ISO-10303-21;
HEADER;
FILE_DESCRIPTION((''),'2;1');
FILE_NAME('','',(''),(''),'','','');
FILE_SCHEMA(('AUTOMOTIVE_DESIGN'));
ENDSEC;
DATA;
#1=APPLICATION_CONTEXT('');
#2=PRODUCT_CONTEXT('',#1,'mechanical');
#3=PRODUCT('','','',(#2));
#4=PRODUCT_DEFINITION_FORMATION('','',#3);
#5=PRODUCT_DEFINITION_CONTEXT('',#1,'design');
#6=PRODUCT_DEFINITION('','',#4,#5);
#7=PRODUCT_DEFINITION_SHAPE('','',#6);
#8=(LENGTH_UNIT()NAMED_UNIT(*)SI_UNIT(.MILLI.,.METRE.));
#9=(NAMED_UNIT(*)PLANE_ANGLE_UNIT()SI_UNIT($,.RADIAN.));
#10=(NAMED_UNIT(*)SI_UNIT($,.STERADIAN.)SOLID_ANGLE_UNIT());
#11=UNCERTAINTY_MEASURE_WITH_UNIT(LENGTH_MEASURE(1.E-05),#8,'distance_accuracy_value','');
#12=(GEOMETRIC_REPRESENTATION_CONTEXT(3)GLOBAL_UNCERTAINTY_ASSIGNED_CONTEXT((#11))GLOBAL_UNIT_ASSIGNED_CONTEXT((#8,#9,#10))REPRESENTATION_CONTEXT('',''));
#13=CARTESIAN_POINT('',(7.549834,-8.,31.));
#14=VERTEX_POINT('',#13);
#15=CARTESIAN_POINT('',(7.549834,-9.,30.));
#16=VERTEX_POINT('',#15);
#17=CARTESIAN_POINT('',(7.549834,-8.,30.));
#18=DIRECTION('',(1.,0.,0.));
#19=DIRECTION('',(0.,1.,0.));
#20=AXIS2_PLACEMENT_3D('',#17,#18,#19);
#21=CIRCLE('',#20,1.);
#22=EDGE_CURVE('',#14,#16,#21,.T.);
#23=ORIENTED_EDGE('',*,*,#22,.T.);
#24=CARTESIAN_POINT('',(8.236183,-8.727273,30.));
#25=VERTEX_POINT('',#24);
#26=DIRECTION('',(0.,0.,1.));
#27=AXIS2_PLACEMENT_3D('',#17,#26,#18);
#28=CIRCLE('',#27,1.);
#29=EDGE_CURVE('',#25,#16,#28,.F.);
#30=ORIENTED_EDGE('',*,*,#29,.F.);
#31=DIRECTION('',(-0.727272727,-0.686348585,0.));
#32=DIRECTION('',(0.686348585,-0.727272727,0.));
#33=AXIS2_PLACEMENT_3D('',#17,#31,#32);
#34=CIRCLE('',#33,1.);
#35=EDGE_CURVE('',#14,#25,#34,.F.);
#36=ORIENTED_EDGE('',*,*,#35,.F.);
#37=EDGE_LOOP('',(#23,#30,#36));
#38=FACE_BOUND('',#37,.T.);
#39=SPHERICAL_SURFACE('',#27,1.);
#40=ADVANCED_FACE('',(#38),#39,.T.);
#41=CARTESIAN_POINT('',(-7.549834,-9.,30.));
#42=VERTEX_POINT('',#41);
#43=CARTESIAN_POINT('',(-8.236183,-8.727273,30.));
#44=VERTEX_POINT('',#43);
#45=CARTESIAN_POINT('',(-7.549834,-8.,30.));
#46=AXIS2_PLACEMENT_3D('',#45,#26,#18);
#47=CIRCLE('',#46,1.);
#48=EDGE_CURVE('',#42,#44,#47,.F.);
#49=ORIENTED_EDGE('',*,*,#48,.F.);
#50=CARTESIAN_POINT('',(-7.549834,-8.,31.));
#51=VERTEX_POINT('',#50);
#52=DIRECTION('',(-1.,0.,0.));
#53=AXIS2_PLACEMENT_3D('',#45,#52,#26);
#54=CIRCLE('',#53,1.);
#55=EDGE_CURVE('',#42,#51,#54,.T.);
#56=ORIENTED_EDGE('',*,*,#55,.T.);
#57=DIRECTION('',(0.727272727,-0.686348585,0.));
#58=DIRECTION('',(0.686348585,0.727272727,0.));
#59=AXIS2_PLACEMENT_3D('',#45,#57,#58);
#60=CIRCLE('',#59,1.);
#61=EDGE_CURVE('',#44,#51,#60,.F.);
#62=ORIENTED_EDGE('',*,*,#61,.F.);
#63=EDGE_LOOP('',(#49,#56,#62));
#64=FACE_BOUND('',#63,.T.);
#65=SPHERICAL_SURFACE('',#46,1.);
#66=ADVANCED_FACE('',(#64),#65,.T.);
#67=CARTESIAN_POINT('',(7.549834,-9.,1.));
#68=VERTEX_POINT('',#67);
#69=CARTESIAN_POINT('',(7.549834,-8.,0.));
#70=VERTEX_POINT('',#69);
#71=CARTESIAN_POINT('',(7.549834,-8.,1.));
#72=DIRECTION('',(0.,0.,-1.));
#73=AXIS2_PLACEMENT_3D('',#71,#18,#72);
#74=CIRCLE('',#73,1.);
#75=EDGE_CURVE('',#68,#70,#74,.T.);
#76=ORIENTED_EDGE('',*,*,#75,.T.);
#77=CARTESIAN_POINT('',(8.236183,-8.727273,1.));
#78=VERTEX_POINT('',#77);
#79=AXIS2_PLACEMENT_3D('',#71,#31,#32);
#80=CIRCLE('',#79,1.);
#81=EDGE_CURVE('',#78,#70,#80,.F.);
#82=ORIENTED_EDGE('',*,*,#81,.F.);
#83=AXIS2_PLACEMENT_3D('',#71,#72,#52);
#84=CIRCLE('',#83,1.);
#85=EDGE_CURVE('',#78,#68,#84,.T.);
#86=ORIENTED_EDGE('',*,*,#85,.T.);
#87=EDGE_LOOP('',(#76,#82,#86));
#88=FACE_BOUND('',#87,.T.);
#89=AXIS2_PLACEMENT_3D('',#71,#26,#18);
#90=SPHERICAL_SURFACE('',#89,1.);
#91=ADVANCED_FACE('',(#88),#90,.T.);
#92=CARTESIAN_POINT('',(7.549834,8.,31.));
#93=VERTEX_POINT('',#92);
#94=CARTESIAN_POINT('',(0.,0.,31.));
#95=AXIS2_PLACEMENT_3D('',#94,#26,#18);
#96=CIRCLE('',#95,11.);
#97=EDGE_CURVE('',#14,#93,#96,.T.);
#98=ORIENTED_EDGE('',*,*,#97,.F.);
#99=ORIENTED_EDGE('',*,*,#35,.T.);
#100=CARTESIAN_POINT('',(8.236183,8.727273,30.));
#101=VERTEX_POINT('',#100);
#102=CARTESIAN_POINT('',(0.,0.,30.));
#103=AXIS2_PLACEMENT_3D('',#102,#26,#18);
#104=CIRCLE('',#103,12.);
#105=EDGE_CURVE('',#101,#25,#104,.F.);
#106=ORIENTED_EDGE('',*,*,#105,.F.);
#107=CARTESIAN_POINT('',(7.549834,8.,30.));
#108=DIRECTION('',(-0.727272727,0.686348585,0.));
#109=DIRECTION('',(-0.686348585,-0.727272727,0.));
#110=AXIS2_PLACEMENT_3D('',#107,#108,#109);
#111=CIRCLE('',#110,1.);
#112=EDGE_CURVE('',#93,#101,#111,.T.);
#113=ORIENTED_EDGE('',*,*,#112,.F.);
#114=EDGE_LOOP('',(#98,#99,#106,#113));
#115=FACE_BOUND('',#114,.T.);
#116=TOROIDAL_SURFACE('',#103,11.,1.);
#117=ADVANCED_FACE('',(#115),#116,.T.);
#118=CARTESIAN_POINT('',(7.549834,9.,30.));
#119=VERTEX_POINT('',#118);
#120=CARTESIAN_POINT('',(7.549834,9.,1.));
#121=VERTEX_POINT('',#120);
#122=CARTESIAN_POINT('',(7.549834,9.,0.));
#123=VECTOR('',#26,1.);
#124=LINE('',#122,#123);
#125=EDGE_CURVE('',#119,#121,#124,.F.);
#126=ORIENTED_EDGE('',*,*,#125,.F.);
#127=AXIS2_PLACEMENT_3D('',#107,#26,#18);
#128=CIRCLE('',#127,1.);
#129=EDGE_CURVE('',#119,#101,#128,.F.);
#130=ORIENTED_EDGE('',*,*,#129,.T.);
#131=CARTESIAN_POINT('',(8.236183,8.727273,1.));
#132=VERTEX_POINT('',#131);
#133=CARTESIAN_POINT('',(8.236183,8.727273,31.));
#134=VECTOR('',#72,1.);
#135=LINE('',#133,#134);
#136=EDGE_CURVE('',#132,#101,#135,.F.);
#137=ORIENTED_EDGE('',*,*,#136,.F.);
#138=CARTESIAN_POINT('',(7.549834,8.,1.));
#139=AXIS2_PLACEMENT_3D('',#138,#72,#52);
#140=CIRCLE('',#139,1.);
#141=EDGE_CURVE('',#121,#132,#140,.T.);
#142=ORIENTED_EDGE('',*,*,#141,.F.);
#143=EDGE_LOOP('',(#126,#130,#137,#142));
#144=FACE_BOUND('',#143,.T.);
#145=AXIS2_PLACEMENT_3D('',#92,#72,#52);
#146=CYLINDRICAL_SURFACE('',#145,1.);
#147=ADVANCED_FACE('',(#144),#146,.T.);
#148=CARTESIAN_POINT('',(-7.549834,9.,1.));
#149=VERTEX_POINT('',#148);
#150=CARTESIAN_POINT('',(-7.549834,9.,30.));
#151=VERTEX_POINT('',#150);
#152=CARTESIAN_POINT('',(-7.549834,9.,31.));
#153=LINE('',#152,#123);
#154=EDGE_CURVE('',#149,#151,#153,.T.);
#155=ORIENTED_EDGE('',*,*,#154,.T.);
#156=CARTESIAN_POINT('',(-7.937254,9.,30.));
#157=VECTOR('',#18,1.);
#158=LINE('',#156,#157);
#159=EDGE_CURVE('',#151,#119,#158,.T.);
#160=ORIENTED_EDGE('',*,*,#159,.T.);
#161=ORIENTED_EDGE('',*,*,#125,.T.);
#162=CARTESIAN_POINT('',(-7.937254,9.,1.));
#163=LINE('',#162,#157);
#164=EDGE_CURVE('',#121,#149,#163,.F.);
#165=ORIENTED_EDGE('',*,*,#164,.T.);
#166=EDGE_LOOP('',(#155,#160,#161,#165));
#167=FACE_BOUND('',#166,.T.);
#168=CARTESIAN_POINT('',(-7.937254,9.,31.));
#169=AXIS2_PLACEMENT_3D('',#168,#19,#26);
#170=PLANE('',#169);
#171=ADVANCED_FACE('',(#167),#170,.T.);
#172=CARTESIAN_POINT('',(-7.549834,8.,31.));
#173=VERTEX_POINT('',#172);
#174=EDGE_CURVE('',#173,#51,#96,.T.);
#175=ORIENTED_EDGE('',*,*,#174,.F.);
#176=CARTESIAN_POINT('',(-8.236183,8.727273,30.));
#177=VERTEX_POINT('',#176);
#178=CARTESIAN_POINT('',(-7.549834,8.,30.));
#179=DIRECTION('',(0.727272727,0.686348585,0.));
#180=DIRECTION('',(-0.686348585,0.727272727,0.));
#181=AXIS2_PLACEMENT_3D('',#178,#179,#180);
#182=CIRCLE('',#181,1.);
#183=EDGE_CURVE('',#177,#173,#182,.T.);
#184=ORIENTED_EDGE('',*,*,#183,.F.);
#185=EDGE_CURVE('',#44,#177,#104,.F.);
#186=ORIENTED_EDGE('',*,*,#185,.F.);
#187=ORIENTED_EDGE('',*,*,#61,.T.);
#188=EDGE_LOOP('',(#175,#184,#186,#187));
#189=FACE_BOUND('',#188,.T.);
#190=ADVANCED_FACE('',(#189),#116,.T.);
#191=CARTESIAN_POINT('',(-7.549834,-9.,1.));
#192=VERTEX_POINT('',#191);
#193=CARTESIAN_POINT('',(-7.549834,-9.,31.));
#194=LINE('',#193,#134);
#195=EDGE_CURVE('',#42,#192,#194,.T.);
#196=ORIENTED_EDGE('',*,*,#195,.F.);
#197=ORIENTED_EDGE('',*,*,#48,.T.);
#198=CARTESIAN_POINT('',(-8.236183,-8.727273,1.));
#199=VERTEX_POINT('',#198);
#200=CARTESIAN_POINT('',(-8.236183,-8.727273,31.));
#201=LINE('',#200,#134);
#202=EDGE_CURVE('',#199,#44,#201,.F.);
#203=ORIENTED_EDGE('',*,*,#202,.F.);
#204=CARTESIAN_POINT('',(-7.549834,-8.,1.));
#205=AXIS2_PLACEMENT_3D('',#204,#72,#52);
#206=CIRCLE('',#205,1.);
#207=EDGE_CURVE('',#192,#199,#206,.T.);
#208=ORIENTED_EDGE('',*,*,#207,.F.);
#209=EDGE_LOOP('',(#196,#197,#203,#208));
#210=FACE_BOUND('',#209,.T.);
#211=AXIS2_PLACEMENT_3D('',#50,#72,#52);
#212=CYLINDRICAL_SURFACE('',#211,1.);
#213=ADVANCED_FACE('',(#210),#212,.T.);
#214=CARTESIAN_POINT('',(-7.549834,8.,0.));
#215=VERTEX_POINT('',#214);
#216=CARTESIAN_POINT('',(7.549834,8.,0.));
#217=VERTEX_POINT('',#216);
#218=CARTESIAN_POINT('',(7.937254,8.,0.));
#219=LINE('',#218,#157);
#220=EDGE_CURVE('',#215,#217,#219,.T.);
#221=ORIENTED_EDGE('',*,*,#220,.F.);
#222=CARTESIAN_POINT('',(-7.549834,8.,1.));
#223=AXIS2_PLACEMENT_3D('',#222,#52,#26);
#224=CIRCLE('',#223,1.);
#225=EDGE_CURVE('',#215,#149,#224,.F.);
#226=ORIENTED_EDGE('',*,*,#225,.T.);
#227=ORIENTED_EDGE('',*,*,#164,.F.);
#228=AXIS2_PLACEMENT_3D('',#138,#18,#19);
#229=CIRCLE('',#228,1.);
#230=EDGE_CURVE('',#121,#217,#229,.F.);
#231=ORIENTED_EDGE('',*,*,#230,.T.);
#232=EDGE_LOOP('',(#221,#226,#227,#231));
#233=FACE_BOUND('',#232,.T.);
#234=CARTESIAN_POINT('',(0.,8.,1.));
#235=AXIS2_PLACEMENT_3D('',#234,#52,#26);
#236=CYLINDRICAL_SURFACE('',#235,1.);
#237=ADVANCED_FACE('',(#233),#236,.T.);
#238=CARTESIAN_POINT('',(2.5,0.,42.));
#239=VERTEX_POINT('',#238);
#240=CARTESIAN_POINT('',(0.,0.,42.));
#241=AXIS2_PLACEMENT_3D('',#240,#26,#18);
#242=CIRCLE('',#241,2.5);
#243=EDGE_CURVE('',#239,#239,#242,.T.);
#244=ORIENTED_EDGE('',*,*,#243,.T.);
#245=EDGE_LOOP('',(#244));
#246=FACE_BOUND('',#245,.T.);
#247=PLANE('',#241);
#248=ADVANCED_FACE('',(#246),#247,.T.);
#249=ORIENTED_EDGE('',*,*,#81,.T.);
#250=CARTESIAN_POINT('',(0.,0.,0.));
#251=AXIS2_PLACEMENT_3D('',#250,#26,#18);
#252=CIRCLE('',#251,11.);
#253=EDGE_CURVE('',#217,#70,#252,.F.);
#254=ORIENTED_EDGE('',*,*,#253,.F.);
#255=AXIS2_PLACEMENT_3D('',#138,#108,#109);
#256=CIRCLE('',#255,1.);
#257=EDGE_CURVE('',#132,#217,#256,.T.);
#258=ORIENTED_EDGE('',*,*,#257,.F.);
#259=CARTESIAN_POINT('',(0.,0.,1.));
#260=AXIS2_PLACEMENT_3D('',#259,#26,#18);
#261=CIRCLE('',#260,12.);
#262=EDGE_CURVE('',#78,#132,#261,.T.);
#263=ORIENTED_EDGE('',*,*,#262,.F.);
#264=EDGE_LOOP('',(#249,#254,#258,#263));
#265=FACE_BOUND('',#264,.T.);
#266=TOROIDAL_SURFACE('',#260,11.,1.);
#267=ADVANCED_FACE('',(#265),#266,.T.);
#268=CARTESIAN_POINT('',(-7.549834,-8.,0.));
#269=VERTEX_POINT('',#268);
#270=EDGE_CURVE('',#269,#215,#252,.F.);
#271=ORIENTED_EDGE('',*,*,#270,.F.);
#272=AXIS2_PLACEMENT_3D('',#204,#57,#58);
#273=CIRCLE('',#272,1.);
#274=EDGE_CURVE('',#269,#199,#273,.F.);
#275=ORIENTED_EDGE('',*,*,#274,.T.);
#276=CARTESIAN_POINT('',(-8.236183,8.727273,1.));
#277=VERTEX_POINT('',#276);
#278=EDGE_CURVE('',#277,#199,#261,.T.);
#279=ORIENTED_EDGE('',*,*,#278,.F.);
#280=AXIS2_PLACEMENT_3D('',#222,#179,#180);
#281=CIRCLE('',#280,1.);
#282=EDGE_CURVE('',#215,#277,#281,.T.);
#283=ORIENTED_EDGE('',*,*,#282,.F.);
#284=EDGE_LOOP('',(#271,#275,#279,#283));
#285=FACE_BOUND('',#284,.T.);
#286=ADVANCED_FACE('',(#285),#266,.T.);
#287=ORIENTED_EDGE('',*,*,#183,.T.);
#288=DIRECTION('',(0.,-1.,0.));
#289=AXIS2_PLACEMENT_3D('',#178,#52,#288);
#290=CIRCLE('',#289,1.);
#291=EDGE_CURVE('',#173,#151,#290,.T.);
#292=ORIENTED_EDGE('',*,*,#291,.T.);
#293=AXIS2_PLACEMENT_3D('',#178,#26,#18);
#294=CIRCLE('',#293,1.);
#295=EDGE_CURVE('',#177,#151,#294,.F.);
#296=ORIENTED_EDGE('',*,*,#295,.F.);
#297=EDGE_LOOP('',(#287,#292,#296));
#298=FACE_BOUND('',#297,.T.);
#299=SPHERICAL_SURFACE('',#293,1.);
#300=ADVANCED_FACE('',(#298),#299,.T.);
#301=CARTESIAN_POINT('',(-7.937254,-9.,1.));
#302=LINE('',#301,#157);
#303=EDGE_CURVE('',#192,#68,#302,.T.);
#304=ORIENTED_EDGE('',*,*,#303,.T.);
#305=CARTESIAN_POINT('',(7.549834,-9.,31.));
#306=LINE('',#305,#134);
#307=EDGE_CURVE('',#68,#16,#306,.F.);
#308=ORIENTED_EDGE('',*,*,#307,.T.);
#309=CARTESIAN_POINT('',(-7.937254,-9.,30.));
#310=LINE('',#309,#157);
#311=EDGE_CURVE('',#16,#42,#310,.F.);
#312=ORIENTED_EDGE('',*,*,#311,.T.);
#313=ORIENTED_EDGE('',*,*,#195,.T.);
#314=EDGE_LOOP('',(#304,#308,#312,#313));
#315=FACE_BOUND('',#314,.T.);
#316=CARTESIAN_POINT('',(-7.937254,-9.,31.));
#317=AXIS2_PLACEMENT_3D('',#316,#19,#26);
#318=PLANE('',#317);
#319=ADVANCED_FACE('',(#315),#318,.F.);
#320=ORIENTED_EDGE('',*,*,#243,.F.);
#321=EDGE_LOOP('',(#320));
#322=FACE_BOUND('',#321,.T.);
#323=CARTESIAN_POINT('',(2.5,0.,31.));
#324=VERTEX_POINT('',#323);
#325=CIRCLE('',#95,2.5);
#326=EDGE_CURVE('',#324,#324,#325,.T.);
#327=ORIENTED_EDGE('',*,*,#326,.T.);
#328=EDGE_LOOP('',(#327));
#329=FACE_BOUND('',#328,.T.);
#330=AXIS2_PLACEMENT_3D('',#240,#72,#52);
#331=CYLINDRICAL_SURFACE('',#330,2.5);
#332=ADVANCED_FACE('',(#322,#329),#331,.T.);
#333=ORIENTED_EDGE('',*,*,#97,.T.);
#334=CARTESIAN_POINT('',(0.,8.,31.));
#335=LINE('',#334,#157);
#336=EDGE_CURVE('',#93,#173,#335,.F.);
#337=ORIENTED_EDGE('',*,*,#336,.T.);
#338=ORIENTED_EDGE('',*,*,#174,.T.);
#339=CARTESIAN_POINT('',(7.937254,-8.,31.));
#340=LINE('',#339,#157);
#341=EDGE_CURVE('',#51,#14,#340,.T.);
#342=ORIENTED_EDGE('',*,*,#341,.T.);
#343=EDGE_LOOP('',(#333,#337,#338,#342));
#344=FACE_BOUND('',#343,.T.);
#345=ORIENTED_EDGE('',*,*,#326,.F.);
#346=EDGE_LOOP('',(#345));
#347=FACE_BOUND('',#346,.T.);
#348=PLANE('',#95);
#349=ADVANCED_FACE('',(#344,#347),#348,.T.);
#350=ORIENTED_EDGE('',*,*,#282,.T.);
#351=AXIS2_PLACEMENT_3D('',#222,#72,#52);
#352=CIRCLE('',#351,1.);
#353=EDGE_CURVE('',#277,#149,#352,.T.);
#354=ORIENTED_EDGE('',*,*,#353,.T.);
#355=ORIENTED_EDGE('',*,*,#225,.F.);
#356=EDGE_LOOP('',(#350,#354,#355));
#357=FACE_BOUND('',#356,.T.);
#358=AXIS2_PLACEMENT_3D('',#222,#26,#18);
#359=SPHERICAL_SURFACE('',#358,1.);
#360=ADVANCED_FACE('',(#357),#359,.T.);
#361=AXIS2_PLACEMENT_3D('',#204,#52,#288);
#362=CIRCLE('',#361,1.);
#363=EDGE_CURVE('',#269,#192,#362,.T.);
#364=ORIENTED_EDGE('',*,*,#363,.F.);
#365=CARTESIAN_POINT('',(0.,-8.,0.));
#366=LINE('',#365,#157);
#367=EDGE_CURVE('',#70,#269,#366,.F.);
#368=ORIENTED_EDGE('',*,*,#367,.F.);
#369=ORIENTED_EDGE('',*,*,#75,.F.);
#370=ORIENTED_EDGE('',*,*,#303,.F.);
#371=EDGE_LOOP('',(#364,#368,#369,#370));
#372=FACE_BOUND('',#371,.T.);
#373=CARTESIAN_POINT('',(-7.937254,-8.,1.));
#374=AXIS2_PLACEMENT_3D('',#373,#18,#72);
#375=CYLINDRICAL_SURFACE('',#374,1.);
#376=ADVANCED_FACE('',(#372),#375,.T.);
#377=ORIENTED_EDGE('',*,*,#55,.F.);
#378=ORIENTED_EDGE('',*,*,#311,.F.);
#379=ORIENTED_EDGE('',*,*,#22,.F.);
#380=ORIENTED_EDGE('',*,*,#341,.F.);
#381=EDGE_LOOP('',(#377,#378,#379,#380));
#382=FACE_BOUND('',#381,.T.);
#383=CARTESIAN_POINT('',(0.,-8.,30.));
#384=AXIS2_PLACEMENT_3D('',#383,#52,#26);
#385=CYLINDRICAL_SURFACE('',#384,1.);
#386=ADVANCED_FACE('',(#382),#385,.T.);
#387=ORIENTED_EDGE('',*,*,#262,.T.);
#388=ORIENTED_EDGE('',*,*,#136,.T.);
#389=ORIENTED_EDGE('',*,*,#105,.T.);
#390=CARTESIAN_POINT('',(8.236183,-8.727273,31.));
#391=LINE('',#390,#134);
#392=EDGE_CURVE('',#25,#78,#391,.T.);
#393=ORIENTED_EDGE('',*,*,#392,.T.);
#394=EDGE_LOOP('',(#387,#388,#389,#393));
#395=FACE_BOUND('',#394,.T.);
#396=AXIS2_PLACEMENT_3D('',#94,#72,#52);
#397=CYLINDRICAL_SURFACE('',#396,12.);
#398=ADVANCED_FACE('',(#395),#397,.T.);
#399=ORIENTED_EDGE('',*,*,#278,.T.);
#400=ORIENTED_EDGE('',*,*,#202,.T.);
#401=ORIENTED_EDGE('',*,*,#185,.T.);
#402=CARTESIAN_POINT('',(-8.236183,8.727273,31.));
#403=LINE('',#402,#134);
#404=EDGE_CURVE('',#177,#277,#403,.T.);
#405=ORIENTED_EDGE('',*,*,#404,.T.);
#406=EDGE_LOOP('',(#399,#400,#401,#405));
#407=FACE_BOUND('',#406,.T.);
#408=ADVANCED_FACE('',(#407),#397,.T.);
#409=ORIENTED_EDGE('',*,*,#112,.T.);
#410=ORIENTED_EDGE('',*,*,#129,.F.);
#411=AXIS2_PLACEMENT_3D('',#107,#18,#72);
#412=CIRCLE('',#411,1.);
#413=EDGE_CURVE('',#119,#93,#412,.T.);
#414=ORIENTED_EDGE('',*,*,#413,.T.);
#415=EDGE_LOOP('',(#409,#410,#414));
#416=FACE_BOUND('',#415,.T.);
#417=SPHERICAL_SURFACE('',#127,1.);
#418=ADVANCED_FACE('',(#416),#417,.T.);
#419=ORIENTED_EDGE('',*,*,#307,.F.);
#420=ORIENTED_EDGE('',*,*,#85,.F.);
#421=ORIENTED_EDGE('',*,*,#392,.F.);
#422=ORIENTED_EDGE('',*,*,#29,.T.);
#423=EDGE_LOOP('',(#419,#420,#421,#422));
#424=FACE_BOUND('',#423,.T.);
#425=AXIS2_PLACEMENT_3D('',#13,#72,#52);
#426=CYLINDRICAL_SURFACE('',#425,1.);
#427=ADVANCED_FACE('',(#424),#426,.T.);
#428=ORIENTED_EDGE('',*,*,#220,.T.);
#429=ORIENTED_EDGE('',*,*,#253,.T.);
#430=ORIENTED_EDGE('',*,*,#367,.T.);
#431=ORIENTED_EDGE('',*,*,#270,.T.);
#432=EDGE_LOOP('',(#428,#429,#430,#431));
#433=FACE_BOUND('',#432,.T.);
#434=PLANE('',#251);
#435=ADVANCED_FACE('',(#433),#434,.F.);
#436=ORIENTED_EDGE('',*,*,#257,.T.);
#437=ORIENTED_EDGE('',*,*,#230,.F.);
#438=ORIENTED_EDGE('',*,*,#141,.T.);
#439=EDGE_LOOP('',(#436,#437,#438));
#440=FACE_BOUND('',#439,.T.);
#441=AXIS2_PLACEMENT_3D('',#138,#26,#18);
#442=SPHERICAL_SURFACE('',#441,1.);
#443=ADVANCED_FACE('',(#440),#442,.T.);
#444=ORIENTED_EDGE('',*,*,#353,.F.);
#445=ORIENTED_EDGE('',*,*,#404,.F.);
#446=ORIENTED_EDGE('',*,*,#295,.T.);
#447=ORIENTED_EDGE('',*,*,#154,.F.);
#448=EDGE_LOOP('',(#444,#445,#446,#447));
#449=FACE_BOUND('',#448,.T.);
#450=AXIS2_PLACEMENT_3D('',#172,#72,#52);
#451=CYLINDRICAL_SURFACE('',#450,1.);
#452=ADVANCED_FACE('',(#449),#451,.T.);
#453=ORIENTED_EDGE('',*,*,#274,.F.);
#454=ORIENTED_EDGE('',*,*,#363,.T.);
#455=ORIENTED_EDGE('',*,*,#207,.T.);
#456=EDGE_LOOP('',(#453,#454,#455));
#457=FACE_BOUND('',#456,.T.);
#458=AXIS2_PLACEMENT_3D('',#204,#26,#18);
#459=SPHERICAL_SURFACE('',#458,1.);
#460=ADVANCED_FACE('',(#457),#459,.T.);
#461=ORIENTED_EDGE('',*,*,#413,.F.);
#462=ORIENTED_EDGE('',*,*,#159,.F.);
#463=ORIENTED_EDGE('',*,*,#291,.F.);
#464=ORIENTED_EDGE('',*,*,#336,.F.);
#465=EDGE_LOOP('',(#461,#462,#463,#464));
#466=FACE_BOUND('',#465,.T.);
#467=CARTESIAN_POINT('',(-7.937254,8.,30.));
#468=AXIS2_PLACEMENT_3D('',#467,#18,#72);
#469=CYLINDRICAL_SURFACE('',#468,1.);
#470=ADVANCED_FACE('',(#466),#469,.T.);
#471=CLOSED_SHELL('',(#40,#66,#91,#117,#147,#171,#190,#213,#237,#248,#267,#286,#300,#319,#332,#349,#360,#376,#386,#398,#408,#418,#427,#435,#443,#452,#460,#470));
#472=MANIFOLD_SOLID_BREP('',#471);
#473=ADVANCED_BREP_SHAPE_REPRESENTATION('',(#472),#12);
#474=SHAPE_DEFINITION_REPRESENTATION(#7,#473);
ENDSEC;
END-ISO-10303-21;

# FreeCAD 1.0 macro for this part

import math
import FreeCAD as App
import Part
import Sketcher


def edges_at(feature, points):
    """Names of the edges that pass closest to the given points."""
    edges = feature.Shape.Edges
    near = lambda p: min(range(len(edges)), key=lambda i: edges[i].distToShape(Part.Vertex(*p))[0])
    return sorted({f"Edge{near(p) + 1}" for p in points})

doc = App.newDocument("Part")
body = doc.addObject("PartDesign::Body", "Body")

# Sketch on XY plane
sketch1 = body.newObject("Sketcher::SketchObject", "Sketch")
sketch1.AttachmentSupport = (doc.getObject("XY_Plane"), [""])
sketch1.MapMode = "FlatFace"
sketch1.addGeometry([
    Part.LineSegment(App.Vector(8, 9, 0), App.Vector(-8, 9, 0)),
    Part.ArcOfCircle(Part.Circle(App.Vector(0, 0, 0), App.Vector(0, 0, 1), 12), math.radians(131), math.radians(229)),
    Part.LineSegment(App.Vector(-8, -9, 0), App.Vector(8, -9, 0)),
    Part.ArcOfCircle(Part.Circle(App.Vector(0, 0, 0), App.Vector(0, 0, 1), 12), math.radians(-49), math.radians(49)),
], False)
sketch1.addConstraint([
    Sketcher.Constraint("Coincident", 0, 2, 1, 1),
    Sketcher.Constraint("Coincident", 1, 2, 2, 1),
    Sketcher.Constraint("Coincident", 2, 2, 3, 1),
    Sketcher.Constraint("Coincident", 3, 2, 0, 1),
    Sketcher.Constraint("Horizontal", 0),
    Sketcher.Constraint("Horizontal", 2),
    Sketcher.Constraint("Coincident", 1, 3, -1, 1),
    Sketcher.Constraint("Coincident", 3, 3, -1, 1),
    Sketcher.Constraint("Equal", 1, 3),
    Sketcher.Constraint("Vertical", 0, 2, 1, 2),
    Sketcher.Constraint("Radius", 1, 12.0),
    Sketcher.Constraint("DistanceY", -1, 1, 0, 2, 9.0),
])
pad1 = body.newObject("PartDesign::Pad", "Pad")
pad1.Profile = sketch1
pad1.Length = 31

# Sketch on XY plane
sketch2 = body.newObject("Sketcher::SketchObject", "Sketch001")
sketch2.AttachmentSupport = (doc.getObject("XY_Plane"), [""])
sketch2.MapMode = "FlatFace"
sketch2.AttachmentOffset = App.Placement(App.Vector(0, 0, 31), App.Rotation())
sketch2.addGeometry(Part.Circle(App.Vector(0, 0, 0), App.Vector(0, 0, 1), 2.5), False)
sketch2.addConstraint([
    Sketcher.Constraint("Coincident", 0, 3, -1, 1),
    Sketcher.Constraint("Diameter", 0, 5.0),
])
pad2 = body.newObject("PartDesign::Pad", "Pad001")
pad2.Profile = sketch2
pad2.Length = 11
doc.recompute()

fillet = body.newObject("PartDesign::Fillet", "Fillet")
fillet.Base = (pad2, edges_at(pad2, [
    (0, -9, 31),
    (-12, 0, 31),
    (0, 9, 31),
    (-12, 0, 0),
    (0, -9, 0),
    (12, 0, 0),
    (0, 9, 0),
    (-7.937, 9, 15.5),
    (-7.937, -9, 15.5),
    (7.937, -9, 15.5),
    (7.937, 9, 15.5),
    (12, 0, 31),
]))
fillet.Radius = 1

doc.recompute()
